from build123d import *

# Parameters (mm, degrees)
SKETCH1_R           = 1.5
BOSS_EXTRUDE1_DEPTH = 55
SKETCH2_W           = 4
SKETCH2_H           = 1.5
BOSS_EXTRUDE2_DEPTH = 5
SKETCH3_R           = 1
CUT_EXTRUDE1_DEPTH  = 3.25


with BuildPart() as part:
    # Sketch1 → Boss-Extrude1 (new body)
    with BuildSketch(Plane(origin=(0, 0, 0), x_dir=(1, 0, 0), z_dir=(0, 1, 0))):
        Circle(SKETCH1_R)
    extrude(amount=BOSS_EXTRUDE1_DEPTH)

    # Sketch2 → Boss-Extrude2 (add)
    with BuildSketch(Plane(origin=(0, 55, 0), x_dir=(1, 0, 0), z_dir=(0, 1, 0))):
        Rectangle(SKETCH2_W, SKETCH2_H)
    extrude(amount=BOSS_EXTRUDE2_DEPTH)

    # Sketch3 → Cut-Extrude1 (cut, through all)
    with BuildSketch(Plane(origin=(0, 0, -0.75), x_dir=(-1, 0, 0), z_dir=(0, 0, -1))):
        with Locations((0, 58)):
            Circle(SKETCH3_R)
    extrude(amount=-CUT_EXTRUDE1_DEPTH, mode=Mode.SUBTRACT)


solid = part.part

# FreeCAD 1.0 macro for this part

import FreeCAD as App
import Part
import Sketcher

V = App.Vector
Q = App.Units.Quantity


def add_polygon(sketch, points):
    """Adds a closed chain of lines whose ends are joined by coincident constraints."""
    first, n = sketch.GeometryCount, len(points)
    for a, b in zip(points, points[1:] + points[:1]):
        sketch.addGeometry(Part.LineSegment(App.Vector(*a, 0), App.Vector(*b, 0)), False)
    for i in range(n):
        sketch.addConstraint(Sketcher.Constraint("Coincident", first + i, 2, first + (i + 1) % n, 1))

doc = App.newDocument("Part")
body = doc.addObject("PartDesign::Body", "Body")

sketch1 = doc.addObject("Sketcher::SketchObject", "Sketch")
body.addObject(sketch1)
sketch1.AttachmentSupport = (doc.XZ_Plane, [""])
sketch1.MapMode = "FlatFace"
sketch1.addGeometry(Part.Circle(V(0, 0, 0), V(0, 0, 1), 1.5), False)
sketch1.addConstraint([
    Sketcher.Constraint("Coincident", 0, 3, -1, 1),
    Sketcher.Constraint("Diameter", 0, Q("3 mm")),
])
pad1 = doc.addObject("PartDesign::Pad", "Pad")
body.addObject(pad1)
pad1.Profile = sketch1
pad1.Length = 55
pad1.Reversed = True

sketch2 = doc.addObject("Sketcher::SketchObject", "Sketch001")
body.addObject(sketch2)
sketch2.AttachmentSupport = (doc.XZ_Plane, [""])
sketch2.MapMode = "FlatFace"
sketch2.AttachmentOffset = App.Placement(V(0, 0, -55), App.Rotation())
add_polygon(sketch2, [(-2, -0.8), (-2, 0.8), (2, 0.8), (2, -0.8)])
sketch2.addConstraint([
    Sketcher.Constraint("Vertical", 0),
    Sketcher.Constraint("Horizontal", 1),
    Sketcher.Constraint("Vertical", 2),
    Sketcher.Constraint("Horizontal", 3),
    Sketcher.Constraint("Symmetric", 0, 2, 2, 2, -1, 1),
    Sketcher.Constraint("DistanceX", 1, 1, 1, 2, Q("4 mm")),
    Sketcher.Constraint("DistanceY", 0, 1, 0, 2, Q("1.5 mm")),
])
pad2 = doc.addObject("PartDesign::Pad", "Pad001")
body.addObject(pad2)
pad2.Profile = sketch2
pad2.Length = 5
pad2.Reversed = True

sketch3 = doc.addObject("Sketcher::SketchObject", "Sketch002")
body.addObject(sketch3)
sketch3.AttachmentSupport = (doc.XY_Plane, [""])
sketch3.MapMode = "FlatFace"
sketch3.AttachmentOffset = App.Placement(V(0, 0, -0.75), App.Rotation())
sketch3.addGeometry(Part.Circle(V(0, 58, 0), V(0, 0, 1), 1), False)
sketch3.addConstraint([
    Sketcher.Constraint("PointOnObject", 0, 3, -2),
    Sketcher.Constraint("Diameter", 0, Q("2 mm")),
    Sketcher.Constraint("DistanceY", -1, 1, 0, 3, Q("58 mm")),
])
pocket1 = doc.addObject("PartDesign::Pocket", "Pocket")
body.addObject(pocket1)
pocket1.Profile = sketch3
pocket1.Type = "ThroughAll"
pocket1.Reversed = True

doc.recompute()
